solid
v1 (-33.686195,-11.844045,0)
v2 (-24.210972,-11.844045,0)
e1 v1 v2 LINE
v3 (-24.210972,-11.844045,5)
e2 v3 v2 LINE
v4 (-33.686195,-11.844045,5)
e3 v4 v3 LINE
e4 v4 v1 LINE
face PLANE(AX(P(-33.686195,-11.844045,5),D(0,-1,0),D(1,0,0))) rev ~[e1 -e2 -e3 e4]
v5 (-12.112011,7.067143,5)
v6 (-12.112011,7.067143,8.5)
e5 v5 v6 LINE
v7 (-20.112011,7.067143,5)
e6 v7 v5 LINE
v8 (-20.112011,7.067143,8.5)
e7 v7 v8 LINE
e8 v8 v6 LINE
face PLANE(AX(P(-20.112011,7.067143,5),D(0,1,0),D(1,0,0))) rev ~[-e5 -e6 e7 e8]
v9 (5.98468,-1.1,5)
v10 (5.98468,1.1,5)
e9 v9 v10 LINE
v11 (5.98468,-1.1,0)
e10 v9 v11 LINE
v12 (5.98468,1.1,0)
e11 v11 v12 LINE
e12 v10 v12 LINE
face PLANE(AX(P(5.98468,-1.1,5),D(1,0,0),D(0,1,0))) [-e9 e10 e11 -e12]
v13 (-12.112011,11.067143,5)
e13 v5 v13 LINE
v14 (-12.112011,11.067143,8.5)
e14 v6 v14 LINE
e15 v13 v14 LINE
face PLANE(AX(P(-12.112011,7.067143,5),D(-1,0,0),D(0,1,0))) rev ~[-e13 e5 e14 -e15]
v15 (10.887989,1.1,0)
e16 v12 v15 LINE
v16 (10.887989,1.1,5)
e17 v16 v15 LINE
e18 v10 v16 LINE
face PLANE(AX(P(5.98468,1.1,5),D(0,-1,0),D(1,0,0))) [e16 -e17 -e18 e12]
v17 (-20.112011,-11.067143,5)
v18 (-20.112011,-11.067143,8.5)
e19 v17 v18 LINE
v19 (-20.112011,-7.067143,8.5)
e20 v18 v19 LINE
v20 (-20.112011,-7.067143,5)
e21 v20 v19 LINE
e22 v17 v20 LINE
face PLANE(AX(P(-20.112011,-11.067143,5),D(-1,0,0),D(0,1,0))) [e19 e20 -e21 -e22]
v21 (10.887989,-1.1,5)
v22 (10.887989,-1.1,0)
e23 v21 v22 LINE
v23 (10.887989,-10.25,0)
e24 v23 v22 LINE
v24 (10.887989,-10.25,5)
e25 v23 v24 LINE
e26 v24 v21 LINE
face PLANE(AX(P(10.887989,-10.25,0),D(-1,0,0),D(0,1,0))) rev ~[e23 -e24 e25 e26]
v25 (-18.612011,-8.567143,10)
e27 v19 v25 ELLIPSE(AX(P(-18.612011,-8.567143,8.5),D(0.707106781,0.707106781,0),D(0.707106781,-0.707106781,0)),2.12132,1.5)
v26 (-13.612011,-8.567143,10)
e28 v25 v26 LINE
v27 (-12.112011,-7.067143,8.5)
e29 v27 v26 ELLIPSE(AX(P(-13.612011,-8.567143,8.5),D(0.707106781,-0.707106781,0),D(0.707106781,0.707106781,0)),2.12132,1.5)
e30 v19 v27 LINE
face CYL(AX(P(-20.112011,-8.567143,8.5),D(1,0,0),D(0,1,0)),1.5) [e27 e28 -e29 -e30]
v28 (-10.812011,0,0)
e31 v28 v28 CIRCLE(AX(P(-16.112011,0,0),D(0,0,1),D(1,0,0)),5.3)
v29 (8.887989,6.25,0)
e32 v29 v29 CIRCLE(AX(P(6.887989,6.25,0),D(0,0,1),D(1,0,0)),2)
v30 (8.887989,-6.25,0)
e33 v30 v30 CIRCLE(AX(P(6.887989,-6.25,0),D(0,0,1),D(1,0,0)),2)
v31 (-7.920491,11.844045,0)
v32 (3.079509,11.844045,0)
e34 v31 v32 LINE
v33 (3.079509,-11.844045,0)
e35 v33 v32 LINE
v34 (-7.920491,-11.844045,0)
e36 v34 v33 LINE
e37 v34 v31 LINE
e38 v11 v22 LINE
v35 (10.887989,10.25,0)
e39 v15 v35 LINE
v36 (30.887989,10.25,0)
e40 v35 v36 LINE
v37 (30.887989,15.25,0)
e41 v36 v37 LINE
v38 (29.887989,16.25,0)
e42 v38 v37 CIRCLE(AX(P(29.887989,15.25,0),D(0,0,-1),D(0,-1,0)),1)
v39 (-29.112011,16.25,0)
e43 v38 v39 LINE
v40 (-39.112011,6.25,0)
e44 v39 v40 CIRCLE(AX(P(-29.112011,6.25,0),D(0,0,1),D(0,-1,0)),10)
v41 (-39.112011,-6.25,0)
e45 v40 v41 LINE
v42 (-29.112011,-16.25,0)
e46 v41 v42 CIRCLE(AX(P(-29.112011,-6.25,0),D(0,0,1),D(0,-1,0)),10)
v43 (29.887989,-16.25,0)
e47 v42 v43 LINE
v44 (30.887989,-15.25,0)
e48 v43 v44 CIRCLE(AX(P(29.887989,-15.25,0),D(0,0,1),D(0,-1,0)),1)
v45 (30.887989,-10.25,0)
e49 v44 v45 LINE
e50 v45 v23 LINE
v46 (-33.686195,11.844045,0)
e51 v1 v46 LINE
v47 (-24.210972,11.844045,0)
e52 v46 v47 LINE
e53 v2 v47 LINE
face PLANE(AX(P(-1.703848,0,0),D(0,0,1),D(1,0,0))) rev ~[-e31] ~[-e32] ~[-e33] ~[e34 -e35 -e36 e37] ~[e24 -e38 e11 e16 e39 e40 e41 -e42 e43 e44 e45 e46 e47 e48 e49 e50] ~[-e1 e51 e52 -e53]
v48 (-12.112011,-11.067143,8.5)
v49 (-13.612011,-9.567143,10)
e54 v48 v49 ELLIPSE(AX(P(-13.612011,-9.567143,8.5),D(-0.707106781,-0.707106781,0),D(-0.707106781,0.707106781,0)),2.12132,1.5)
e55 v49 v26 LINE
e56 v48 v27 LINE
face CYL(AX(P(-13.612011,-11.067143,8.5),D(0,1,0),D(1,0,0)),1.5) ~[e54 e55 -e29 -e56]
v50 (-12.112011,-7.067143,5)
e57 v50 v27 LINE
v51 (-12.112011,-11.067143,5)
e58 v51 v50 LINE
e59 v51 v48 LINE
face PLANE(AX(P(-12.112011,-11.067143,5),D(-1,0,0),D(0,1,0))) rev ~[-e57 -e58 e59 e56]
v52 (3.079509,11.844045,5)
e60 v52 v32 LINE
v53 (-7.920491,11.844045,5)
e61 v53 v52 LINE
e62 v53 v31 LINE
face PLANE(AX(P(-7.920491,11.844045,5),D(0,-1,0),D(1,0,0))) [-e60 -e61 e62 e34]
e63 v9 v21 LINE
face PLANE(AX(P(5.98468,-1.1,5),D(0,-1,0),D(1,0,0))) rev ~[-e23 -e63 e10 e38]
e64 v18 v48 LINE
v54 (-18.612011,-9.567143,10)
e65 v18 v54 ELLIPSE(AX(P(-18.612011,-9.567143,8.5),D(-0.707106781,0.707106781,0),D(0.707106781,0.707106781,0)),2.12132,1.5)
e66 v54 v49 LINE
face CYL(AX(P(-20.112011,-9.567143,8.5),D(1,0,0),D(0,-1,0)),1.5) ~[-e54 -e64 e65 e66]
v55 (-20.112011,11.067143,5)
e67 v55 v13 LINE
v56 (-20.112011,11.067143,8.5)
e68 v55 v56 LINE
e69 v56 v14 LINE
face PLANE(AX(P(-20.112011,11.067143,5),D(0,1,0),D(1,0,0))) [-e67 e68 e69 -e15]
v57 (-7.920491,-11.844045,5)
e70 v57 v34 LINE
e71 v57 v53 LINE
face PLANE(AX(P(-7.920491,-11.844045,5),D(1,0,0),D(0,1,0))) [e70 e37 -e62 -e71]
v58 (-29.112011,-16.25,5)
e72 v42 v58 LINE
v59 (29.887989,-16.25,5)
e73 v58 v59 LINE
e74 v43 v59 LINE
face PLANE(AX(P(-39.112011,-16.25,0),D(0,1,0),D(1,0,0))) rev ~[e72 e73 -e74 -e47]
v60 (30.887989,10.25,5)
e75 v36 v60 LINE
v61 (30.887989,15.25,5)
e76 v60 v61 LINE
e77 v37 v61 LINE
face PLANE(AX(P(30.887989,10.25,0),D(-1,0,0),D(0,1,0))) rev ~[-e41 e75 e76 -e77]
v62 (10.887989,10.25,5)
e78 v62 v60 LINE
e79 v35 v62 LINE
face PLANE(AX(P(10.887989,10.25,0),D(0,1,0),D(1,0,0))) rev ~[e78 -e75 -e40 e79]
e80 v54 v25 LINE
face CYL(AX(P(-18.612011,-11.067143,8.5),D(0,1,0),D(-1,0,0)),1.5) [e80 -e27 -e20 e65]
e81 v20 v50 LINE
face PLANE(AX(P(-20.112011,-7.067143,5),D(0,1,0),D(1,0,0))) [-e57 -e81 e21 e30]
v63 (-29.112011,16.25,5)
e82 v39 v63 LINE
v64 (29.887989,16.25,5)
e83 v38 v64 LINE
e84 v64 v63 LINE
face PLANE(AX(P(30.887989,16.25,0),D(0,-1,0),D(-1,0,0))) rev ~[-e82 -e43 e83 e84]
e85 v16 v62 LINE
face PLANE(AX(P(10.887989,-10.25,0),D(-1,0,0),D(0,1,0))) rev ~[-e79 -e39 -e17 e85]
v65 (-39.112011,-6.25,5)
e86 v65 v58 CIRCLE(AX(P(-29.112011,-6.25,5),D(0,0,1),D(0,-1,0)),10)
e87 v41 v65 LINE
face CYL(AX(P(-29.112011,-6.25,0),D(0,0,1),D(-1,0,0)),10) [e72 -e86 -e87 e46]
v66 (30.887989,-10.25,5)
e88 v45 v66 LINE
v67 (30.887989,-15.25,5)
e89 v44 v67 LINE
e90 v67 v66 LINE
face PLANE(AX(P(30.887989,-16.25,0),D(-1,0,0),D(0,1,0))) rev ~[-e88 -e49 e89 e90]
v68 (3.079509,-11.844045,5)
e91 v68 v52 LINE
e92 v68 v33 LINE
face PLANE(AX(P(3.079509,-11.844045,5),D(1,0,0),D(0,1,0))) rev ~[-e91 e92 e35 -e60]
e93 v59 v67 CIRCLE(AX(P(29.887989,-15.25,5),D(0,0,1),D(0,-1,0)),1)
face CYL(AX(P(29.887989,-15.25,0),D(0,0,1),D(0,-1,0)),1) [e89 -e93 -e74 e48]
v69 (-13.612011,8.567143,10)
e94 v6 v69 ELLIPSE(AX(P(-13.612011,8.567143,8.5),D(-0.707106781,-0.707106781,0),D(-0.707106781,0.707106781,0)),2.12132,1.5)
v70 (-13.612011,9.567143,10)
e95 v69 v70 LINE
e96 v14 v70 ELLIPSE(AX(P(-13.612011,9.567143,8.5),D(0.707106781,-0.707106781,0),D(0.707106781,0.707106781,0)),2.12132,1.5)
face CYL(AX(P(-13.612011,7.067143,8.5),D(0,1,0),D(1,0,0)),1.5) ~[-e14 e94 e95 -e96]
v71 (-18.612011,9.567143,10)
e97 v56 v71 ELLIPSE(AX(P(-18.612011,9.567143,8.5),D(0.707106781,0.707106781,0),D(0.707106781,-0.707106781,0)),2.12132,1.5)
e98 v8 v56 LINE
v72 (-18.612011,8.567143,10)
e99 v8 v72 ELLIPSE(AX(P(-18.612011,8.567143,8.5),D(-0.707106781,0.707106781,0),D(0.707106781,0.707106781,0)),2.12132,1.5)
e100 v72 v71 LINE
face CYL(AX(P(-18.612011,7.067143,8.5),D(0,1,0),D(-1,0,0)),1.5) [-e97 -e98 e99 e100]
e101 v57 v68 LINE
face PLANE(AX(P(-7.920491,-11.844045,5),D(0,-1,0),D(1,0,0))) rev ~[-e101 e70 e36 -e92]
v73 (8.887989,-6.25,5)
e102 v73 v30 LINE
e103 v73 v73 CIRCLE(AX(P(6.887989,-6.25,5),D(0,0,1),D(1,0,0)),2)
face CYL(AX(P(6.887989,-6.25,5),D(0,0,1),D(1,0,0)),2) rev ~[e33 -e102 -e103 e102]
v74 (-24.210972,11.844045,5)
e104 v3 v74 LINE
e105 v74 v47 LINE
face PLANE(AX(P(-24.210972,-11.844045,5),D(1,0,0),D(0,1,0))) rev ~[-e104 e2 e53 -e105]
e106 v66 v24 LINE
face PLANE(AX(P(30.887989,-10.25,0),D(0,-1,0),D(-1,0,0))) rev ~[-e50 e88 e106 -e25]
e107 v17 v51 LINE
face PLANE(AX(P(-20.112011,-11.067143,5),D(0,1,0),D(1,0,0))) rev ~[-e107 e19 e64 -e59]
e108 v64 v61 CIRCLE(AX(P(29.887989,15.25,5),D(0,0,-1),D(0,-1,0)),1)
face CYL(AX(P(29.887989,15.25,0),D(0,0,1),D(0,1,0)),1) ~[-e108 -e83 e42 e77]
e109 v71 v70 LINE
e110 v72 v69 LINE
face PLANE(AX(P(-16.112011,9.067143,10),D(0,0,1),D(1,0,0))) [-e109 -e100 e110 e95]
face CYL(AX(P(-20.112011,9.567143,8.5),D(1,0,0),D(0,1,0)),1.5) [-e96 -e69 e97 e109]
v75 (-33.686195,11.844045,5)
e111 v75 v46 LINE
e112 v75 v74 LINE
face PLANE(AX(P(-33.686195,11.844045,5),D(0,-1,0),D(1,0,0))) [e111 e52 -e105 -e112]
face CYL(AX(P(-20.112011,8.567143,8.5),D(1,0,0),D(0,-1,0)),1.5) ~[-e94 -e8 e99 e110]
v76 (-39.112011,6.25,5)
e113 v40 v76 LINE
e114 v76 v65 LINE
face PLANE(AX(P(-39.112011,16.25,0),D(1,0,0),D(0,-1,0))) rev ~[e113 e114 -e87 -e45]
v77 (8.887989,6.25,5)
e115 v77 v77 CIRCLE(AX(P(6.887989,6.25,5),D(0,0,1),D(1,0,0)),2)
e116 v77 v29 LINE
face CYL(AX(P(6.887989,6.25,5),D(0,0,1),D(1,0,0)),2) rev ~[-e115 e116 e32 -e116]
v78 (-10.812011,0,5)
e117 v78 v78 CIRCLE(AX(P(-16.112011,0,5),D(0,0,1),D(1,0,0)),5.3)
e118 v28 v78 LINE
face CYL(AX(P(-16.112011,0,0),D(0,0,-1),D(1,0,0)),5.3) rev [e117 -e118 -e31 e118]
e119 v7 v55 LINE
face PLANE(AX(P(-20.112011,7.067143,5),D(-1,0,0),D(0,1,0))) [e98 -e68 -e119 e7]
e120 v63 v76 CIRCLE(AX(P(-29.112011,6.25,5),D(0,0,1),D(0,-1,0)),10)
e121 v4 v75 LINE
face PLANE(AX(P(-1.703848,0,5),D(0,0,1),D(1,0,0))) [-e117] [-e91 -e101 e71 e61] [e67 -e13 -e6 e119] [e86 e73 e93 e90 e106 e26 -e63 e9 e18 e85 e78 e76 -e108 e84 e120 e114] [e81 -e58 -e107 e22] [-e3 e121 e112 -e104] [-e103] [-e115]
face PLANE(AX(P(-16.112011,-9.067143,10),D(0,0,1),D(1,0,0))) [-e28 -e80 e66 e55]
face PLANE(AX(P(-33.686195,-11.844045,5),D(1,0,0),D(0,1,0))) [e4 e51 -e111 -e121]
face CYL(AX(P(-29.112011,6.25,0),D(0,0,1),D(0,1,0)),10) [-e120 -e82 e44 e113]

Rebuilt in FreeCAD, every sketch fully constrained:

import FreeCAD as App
import Part
import Sketcher

V = App.Vector


def edges_at(feature, points):
    """Names of the edges that pass closest to the given points."""
    edges = feature.Shape.Edges
    near = lambda p: min(range(len(edges)), key=lambda i: edges[i].distToShape(Part.Vertex(*p))[0])
    return sorted({f"Edge{near(p) + 1}" for p in points})

doc = App.newDocument("Part")
body = doc.addObject("PartDesign::Body", "Body")

sketch1 = body.newObject("Sketcher::SketchObject", "Sketch")
sketch1.AttachmentSupport = (doc.getObject("XY_Plane"), [""])
sketch1.MapMode = "FlatFace"
sketch1.addGeometry([
    Part.LineSegment(V(31, 10, 0), V(31, 16, 0)),
    Part.LineSegment(V(31, 16, 0), V(-39, 16, 0)),
    Part.LineSegment(V(-39, 16, 0), V(-39, -16, 0)),
    Part.LineSegment(V(-39, -16, 0), V(31, -16, 0)),
    Part.LineSegment(V(31, -16, 0), V(31, -10, 0)),
    Part.LineSegment(V(31, -10, 0), V(11, -10, 0)),
    Part.LineSegment(V(11, -10, 0), V(11, 10, 0)),
    Part.LineSegment(V(11, 10, 0), V(31, 10, 0)),
    Part.Circle(V(-16, 0, 0), V(0, 0, 1), 5),
], False)
sketch1.addConstraint([
    Sketcher.Constraint("Coincident", 0, 2, 1, 1),
    Sketcher.Constraint("Coincident", 1, 2, 2, 1),
    Sketcher.Constraint("Coincident", 2, 2, 3, 1),
    Sketcher.Constraint("Coincident", 3, 2, 4, 1),
    Sketcher.Constraint("Coincident", 4, 2, 5, 1),
    Sketcher.Constraint("Coincident", 5, 2, 6, 1),
    Sketcher.Constraint("Coincident", 6, 2, 7, 1),
    Sketcher.Constraint("Coincident", 7, 2, 0, 1),
    Sketcher.Constraint("Vertical", 0),
    Sketcher.Constraint("Horizontal", 1),
    Sketcher.Constraint("Vertical", 2),
    Sketcher.Constraint("Horizontal", 3),
    Sketcher.Constraint("Vertical", 4),
    Sketcher.Constraint("Horizontal", 5),
    Sketcher.Constraint("Vertical", 6),
    Sketcher.Constraint("Horizontal", 7),
    Sketcher.Constraint("Symmetric", 0, 2, 3, 2, -1),
    Sketcher.Constraint("PointOnObject", 8, 3, -1),
    Sketcher.Constraint("Equal", 0, 4),
    Sketcher.Constraint("Diameter", 8, 10.6),
    Sketcher.Constraint("DistanceX", 1, 2, 1, 1, 70.0),
    Sketcher.Constraint("DistanceX", 5, 2, 5, 1, 20.0),
    Sketcher.Constraint("DistanceY", 0, 1, 0, 2, 6.0),
    Sketcher.Constraint("DistanceY", 2, 2, 2, 1, 32.5),
    Sketcher.Constraint("DistanceX", 8, 3, 0, 2, 47.0),
    Sketcher.Constraint("DistanceX", 8, 3, -1, 1, 16.112011),
])
pad1 = body.newObject("PartDesign::Pad", "Pad")
pad1.Profile = sketch1
pad1.Length = 5
doc.recompute()

fillet = body.newObject("PartDesign::Fillet", "Fillet")
fillet.Base = (pad1, edges_at(pad1, [(-39.112, -16.25, 2.5), (-39.112, 16.25, 2.5)]))
fillet.Radius = 10
doc.recompute()

fillet2 = body.newObject("PartDesign::Fillet", "Fillet001")
fillet2.Base = (fillet, edges_at(fillet, [(30.888, -16.25, 2.5), (30.888, 16.25, 2.5)]))
fillet2.Radius = 1

sketch2 = body.newObject("Sketcher::SketchObject", "Sketch001")
sketch2.AttachmentSupport = (doc.getObject("XY_Plane"), [""])
sketch2.MapMode = "FlatFace"
sketch2.AttachmentOffset = App.Placement(V(0, 0, 5), App.Rotation())
sketch2.addGeometry([
    Part.Circle(V(6.9, 6.2, 0), V(0, 0, 1), 2),
    Part.Circle(V(6.9, -6.2, 0), V(0, 0, 1), 2),
    Part.LineSegment(V(-33.7, 11.8, 0), V(-33.7, -11.8, 0)),
    Part.LineSegment(V(-33.7, -11.8, 0), V(-24.2, -11.8, 0)),
    Part.LineSegment(V(-24.2, -11.8, 0), V(-24.2, 11.8, 0)),
    Part.LineSegment(V(-24.2, 11.8, 0), V(-33.7, 11.8, 0)),
    Part.LineSegment(V(-7.9, 11.8, 0), V(-7.9, -11.8, 0)),
    Part.LineSegment(V(-7.9, -11.8, 0), V(3.1, -11.8, 0)),
    Part.LineSegment(V(3.1, -11.8, 0), V(3.1, 11.8, 0)),
    Part.LineSegment(V(3.1, 11.8, 0), V(-7.9, 11.8, 0)),
    Part.LineSegment(V(6, 1.1, 0), V(6, -1.1, 0)),
    Part.LineSegment(V(6, -1.1, 0), V(10.9, -1.1, 0)),
    Part.LineSegment(V(10.9, -1.1, 0), V(10.9, 1.1, 0)),
    Part.LineSegment(V(10.9, 1.1, 0), V(6, 1.1, 0)),
], False)
sketch2.addConstraint([
    Sketcher.Constraint("Coincident", 2, 2, 3, 1),
    Sketcher.Constraint("Coincident", 3, 2, 4, 1),
    Sketcher.Constraint("Coincident", 4, 2, 5, 1),
    Sketcher.Constraint("Coincident", 5, 2, 2, 1),
    Sketcher.Constraint("Coincident", 6, 2, 7, 1),
    Sketcher.Constraint("Coincident", 7, 2, 8, 1),
    Sketcher.Constraint("Coincident", 8, 2, 9, 1),
    Sketcher.Constraint("Coincident", 9, 2, 6, 1),
    Sketcher.Constraint("Coincident", 10, 2, 11, 1),
    Sketcher.Constraint("Coincident", 11, 2, 12, 1),
    Sketcher.Constraint("Coincident", 12, 2, 13, 1),
    Sketcher.Constraint("Coincident", 13, 2, 10, 1),
    Sketcher.Constraint("Vertical", 2),
    Sketcher.Constraint("Horizontal", 3),
    Sketcher.Constraint("Vertical", 4),
    Sketcher.Constraint("Horizontal", 5),
    Sketcher.Constraint("Vertical", 6),
    Sketcher.Constraint("Horizontal", 7),
    Sketcher.Constraint("Vertical", 8),
    Sketcher.Constraint("Horizontal", 9),
    Sketcher.Constraint("Vertical", 10),
    Sketcher.Constraint("Horizontal", 11),
    Sketcher.Constraint("Vertical", 12),
    Sketcher.Constraint("Horizontal", 13),
    Sketcher.Constraint("Equal", 0, 1),
    Sketcher.Constraint("Symmetric", 0, 3, 1, 3, -1),
    Sketcher.Constraint("Horizontal", 3, 2, 6, 2),
    Sketcher.Constraint("Horizontal", 5, 2, 8, 2),
    Sketcher.Constraint("Diameter", 0, 4.0),
    Sketcher.Constraint("DistanceX", 7, 1, 7, 2, 11.0),
    Sketcher.Constraint("DistanceY", 10, 2, 10, 1, 2.2),
    Sketcher.Constraint("DistanceX", 1, 3, 11, 2, 4.0),
    Sketcher.Constraint("DistanceY", 10, 2, -1, 1, 1.1),
    Sketcher.Constraint("DistanceY", 1, 3, 0, 3, 12.5),
    Sketcher.Constraint("DistanceX", 11, 1, 11, 2, 4.903309),
    Sketcher.Constraint("DistanceY", 2, 2, 2, 1, 23.68809),
    Sketcher.Constraint("DistanceX", 3, 1, 3, 2, 9.475223),
    Sketcher.Constraint("DistanceX", -1, 1, 0, 3, 6.887989),
    Sketcher.Constraint("DistanceX", 6, 2, -1, 1, 7.920491),
    Sketcher.Constraint("DistanceX", 3, 2, 1, 3, 31.098961),
    Sketcher.Constraint("DistanceY", 2, 2, -1, 1, 11.844045),
])
pocket1 = body.newObject("PartDesign::Pocket", "Pocket")
pocket1.Profile = sketch2
pocket1.Length = 5

sketch3 = body.newObject("Sketcher::SketchObject", "Sketch002")
sketch3.AttachmentSupport = (doc.getObject("XY_Plane"), [""])
sketch3.MapMode = "FlatFace"
sketch3.AttachmentOffset = App.Placement(V(0, 0, 5), App.Rotation())
sketch3.addGeometry([
    Part.LineSegment(V(-20.1, 11.1, 0), V(-20.1, 7.1, 0)),
    Part.LineSegment(V(-20.1, 7.1, 0), V(-12.1, 7.1, 0)),
    Part.LineSegment(V(-12.1, 7.1, 0), V(-12.1, 11.1, 0)),
    Part.LineSegment(V(-12.1, 11.1, 0), V(-20.1, 11.1, 0)),
    Part.LineSegment(V(-20.1, -7.1, 0), V(-20.1, -11.1, 0)),
    Part.LineSegment(V(-20.1, -11.1, 0), V(-12.1, -11.1, 0)),
    Part.LineSegment(V(-12.1, -11.1, 0), V(-12.1, -7.1, 0)),
    Part.LineSegment(V(-12.1, -7.1, 0), V(-20.1, -7.1, 0)),
], False)
sketch3.addConstraint([
    Sketcher.Constraint("Coincident", 0, 2, 1, 1),
    Sketcher.Constraint("Coincident", 1, 2, 2, 1),
    Sketcher.Constraint("Coincident", 2, 2, 3, 1),
    Sketcher.Constraint("Coincident", 3, 2, 0, 1),
    Sketcher.Constraint("Coincident", 4, 2, 5, 1),
    Sketcher.Constraint("Coincident", 5, 2, 6, 1),
    Sketcher.Constraint("Coincident", 6, 2, 7, 1),
    Sketcher.Constraint("Coincident", 7, 2, 4, 1),
    Sketcher.Constraint("Vertical", 0),
    Sketcher.Constraint("Horizontal", 1),
    Sketcher.Constraint("Vertical", 2),
    Sketcher.Constraint("Horizontal", 3),
    Sketcher.Constraint("Vertical", 4),
    Sketcher.Constraint("Horizontal", 5),
    Sketcher.Constraint("Vertical", 6),
    Sketcher.Constraint("Horizontal", 7),
    Sketcher.Constraint("Symmetric", 3, 2, 4, 2, -1),
    Sketcher.Constraint("Symmetric", 1, 2, 6, 2, -1),
    Sketcher.Constraint("DistanceX", 1, 1, 1, 2, 8.0),
    Sketcher.Constraint("DistanceY", 0, 2, 0, 1, 4.0),
    Sketcher.Constraint("DistanceX", 0, 2, -1, 1, 20.112011),
    Sketcher.Constraint("DistanceY", -1, 1, 0, 2, 7.067143),
])
pad2 = body.newObject("PartDesign::Pad", "Pad001")
pad2.Profile = sketch3
pad2.Length = 5
doc.recompute()

fillet3 = body.newObject("PartDesign::Fillet", "Fillet002")
fillet3.Base = (pad2, edges_at(pad2, [
    (-16.112, 11.067, 10),
    (-12.112, 9.067, 10),
    (-16.112, 7.067, 10),
    (-20.112, 9.067, 10),
    (-16.112, -7.067, 10),
    (-12.112, -9.067, 10),
    (-16.112, -11.067, 10),
    (-20.112, -9.067, 10),
]))
fillet3.Radius = 1.5

doc.recompute()
